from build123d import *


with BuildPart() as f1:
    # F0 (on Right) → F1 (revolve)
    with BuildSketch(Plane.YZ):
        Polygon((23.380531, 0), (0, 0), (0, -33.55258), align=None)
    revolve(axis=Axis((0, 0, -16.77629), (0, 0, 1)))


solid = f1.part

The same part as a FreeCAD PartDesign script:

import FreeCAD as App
import Part
import Sketcher
from FreeCAD import Vector
Q = App.Units.Quantity

doc = App.newDocument("Part")
body = doc.addObject("PartDesign::Body", "Body")

# Sketch on YZ plane
sketch1 = doc.addObject("Sketcher::SketchObject", "Sketch")
body.addObject(sketch1)
sketch1.AttachmentSupport = (doc.YZ_Plane, [""])
sketch1.MapMode = "FlatFace"
sketch1.addGeometry(Part.LineSegment(Vector(23, 0, 0), Vector(0, 0, 0)), False)
sketch1.addGeometry(Part.LineSegment(Vector(0, 0, 0), Vector(0, -34, 0)), False)
sketch1.addGeometry(Part.LineSegment(Vector(0, -34, 0), Vector(23, 0, 0)), False)
sketch1.addConstraint(Sketcher.Constraint("Coincident", 0, 2, 1, 1))
sketch1.addConstraint(Sketcher.Constraint("Coincident", 1, 2, 2, 1))
sketch1.addConstraint(Sketcher.Constraint("Coincident", 2, 2, 0, 1))
sketch1.addConstraint(Sketcher.Constraint("Horizontal", 0))
sketch1.addConstraint(Sketcher.Constraint("Vertical", 1))
sketch1.addConstraint(Sketcher.Constraint("Coincident", 0, 2, -1, 1))
sketch1.addConstraint(Sketcher.Constraint("DistanceX", 0, 2, 0, 1, Q("23.380531 mm")))
sketch1.addConstraint(Sketcher.Constraint("DistanceY", 1, 2, 1, 1, Q("33.55258 mm")))
revolution = doc.addObject("PartDesign::Revolution", "Revolution")
body.addObject(revolution)
revolution.Profile = sketch1
revolution.ReferenceAxis = (sketch1, ["V_Axis"])
revolution.Angle = 360

doc.recompute()
